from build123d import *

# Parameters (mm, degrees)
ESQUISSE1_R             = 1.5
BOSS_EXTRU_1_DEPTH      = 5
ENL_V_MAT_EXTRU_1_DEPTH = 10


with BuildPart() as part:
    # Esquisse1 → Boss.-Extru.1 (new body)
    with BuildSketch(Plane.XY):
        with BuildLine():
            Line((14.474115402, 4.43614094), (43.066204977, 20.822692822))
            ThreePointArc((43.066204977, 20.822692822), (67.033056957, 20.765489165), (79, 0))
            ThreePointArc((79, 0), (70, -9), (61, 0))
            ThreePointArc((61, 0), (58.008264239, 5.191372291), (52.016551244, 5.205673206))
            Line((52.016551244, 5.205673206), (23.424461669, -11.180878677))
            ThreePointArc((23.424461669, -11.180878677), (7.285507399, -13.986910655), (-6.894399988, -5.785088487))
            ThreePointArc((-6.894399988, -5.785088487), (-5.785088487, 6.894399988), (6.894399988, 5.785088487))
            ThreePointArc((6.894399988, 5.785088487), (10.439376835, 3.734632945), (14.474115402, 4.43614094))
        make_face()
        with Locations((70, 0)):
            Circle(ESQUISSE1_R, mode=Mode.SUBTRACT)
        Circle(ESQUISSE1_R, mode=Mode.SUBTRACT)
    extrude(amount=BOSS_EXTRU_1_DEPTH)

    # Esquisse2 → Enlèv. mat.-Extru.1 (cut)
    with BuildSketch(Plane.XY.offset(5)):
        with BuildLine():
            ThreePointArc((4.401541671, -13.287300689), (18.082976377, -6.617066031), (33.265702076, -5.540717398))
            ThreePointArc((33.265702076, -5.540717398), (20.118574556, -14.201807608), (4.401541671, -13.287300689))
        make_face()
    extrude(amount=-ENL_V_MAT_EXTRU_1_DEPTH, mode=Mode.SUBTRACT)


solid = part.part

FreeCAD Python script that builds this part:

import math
import FreeCAD as App
import Part
import Sketcher

V = App.Vector

doc = App.newDocument("Part")
body = doc.addObject("PartDesign::Body", "Body")

sketch1 = body.newObject("Sketcher::SketchObject", "Sketch")
sketch1.AttachmentSupport = (doc.getObject("XY_Plane"), [""])
sketch1.MapMode = "FlatFace"
sketch1.addGeometry(Part.LineSegment(V(43.1, 20.8, 0), V(14.5, 4.4, 0)), False)
sketch1.addGeometry(Part.ArcOfCircle(Part.Circle(V(11.5, 9.6, 0), V(0, 0, 1), 6), math.radians(-140), math.radians(-60)), False)
sketch1.addGeometry(Part.ArcOfCircle(Part.Circle(V(0, 0, 0), V(0, 0, 1), 9), math.radians(40), math.radians(220)), False)
sketch1.addGeometry(Part.ArcOfCircle(Part.Circle(V(11.5, 9.6, 0), V(0, 0, 1), 24), math.radians(-140), math.radians(-60)), False)
sketch1.addGeometry(Part.LineSegment(V(23.4, -11.2, 0), V(52, 5.2, 0)), False)
sketch1.addGeometry(Part.ArcOfCircle(Part.Circle(V(55, 0, 0), V(0, 0, 1), 6), math.radians(0), math.radians(120)), False)
sketch1.addGeometry(Part.ArcOfCircle(Part.Circle(V(70, 0, 0), V(0, 0, 1), 9), math.radians(180), math.radians(360)), False)
sketch1.addGeometry(Part.ArcOfCircle(Part.Circle(V(55, 0, 0), V(0, 0, 1), 24), math.radians(0), math.radians(120)), False)
sketch1.addGeometry(Part.Circle(V(70, 0, 0), V(0, 0, 1), 1.5), False)
sketch1.addGeometry(Part.Circle(V(0, 0, 0), V(0, 0, 1), 1.5), False)
sketch1.addConstraint(Sketcher.Constraint("Tangent", 0, 2, 1, 2))
sketch1.addConstraint(Sketcher.Constraint("Tangent", 1, 1, 2, 1))
sketch1.addConstraint(Sketcher.Constraint("Tangent", 2, 2, 3, 1))
sketch1.addConstraint(Sketcher.Constraint("Tangent", 3, 2, 4, 1))
sketch1.addConstraint(Sketcher.Constraint("Tangent", 4, 2, 5, 2))
sketch1.addConstraint(Sketcher.Constraint("Tangent", 5, 1, 6, 1))
sketch1.addConstraint(Sketcher.Constraint("Tangent", 6, 2, 7, 1))
sketch1.addConstraint(Sketcher.Constraint("Tangent", 7, 2, 0, 1))
sketch1.addConstraint(Sketcher.Constraint("Coincident", 2, 3, -1, 1))
sketch1.addConstraint(Sketcher.Constraint("Coincident", 9, 3, -1, 1))
sketch1.addConstraint(Sketcher.Constraint("Coincident", 3, 3, 1, 3))
sketch1.addConstraint(Sketcher.Constraint("Coincident", 7, 3, 5, 3))
sketch1.addConstraint(Sketcher.Constraint("Coincident", 8, 3, 6, 3))
sketch1.addConstraint(Sketcher.Constraint("Equal", 1, 5))
sketch1.addConstraint(Sketcher.Constraint("Equal", 2, 6))
sketch1.addConstraint(Sketcher.Constraint("Equal", 8, 9))
sketch1.addConstraint(Sketcher.Constraint("PointOnObject", 5, 3, -1))
sketch1.addConstraint(Sketcher.Constraint("PointOnObject", 6, 3, -1))
sketch1.addConstraint(Sketcher.Constraint("Diameter", 8, 3.0))
sketch1.addConstraint(Sketcher.Constraint("Radius", 1, 6.0))
sketch1.addConstraint(Sketcher.Constraint("Radius", 2, 9.0))
sketch1.addConstraint(Sketcher.Constraint("DistanceX", -1, 1, 5, 3, 55.0))
sketch1.addConstraint(Sketcher.Constraint("DistanceX", -1, 1, 1, 1, 6.8944))
pad1 = body.newObject("PartDesign::Pad", "Pad")
pad1.Profile = sketch1
pad1.Length = 5

sketch2 = body.newObject("Sketcher::SketchObject", "Sketch001")
sketch2.AttachmentSupport = (doc.getObject("XY_Plane"), [""])
sketch2.MapMode = "FlatFace"
sketch2.AttachmentOffset = App.Placement(V(0, 0, 5), App.Rotation())
sketch2.addGeometry(Part.ArcOfCircle(Part.Circle(V(28, -45, 0), V(0, 0, 1), 40), math.radians(83), math.radians(127)), False)
sketch2.addGeometry(Part.ArcOfCircle(Part.Circle(V(14, 10, 0), V(0, 0, 1), 25), math.radians(-112), math.radians(-38)), False)
sketch2.addConstraint(Sketcher.Constraint("Coincident", 0, 1, 1, 2))
sketch2.addConstraint(Sketcher.Constraint("Coincident", 1, 1, 0, 2))
sketch2.addConstraint(Sketcher.Constraint("Radius", 0, 40.0))
sketch2.addConstraint(Sketcher.Constraint("Radius", 1, 25.0))
sketch2.addConstraint(Sketcher.Constraint("DistanceY", 1, 1, -1, 1, 13.287301))
sketch2.addConstraint(Sketcher.Constraint("DistanceX", -1, 1, 0, 3, 28.451291))
sketch2.addConstraint(Sketcher.Constraint("DistanceY", 0, 3, -1, 1, 45.249928))
sketch2.addConstraint(Sketcher.Constraint("DistanceX", -1, 1, 1, 3, 13.638378))
pocket1 = body.newObject("PartDesign::Pocket", "Pocket")
pocket1.Profile = sketch2
pocket1.Length = 10

doc.recompute()
